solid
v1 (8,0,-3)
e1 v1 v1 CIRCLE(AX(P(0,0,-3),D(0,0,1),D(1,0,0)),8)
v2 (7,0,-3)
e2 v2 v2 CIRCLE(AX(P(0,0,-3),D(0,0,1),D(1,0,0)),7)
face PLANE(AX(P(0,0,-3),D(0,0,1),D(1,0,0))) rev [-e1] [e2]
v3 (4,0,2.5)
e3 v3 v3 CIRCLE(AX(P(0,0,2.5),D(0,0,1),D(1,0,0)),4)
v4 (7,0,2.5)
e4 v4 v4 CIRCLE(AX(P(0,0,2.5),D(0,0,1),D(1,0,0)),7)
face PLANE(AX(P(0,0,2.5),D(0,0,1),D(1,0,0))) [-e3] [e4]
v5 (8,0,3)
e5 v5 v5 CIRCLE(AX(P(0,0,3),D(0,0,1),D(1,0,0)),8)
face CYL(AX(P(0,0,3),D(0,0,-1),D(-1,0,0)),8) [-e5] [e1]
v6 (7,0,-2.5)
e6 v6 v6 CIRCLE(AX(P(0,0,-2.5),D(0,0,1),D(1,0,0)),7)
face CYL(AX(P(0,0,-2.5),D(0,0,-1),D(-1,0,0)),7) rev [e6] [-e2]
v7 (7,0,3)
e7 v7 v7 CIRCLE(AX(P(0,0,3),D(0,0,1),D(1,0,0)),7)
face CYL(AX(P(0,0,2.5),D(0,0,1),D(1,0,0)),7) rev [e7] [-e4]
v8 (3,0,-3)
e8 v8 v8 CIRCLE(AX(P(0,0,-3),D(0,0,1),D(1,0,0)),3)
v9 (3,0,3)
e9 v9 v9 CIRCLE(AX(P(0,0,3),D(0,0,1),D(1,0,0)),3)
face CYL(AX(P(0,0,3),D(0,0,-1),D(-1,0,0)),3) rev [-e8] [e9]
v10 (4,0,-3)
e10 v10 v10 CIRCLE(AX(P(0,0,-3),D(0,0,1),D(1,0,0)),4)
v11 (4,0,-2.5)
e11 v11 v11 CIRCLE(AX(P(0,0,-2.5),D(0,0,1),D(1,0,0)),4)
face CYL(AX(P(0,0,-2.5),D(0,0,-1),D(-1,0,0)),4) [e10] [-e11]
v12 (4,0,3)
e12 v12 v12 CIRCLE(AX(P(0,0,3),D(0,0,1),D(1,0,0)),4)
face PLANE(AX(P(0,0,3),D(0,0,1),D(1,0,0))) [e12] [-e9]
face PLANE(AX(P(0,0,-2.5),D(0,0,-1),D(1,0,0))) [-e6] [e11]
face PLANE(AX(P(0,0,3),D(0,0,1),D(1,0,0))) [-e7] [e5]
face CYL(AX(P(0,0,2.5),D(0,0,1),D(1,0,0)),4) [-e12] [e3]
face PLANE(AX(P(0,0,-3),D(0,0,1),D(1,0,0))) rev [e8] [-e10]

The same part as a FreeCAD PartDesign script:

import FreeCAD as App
import Part
import Sketcher

V = App.Vector

doc = App.newDocument("Part")
body = doc.addObject("PartDesign::Body", "Body")

# Sketch on XY plane
sketch1 = doc.addObject("Sketcher::SketchObject", "Sketch")
body.addObject(sketch1)
sketch1.AttachmentSupport = (doc.XY_Plane, [""])
sketch1.MapMode = "FlatFace"
sketch1.addGeometry(Part.Circle(V(0, 0, 0), V(0, 0, 1), 8), False)
sketch1.addGeometry(Part.Circle(V(0, 0, 0), V(0, 0, 1), 3), False)
sketch1.addConstraint(Sketcher.Constraint("Coincident", 0, 3, -1, 1))
sketch1.addConstraint(Sketcher.Constraint("Coincident", 1, 3, -1, 1))
sketch1.addConstraint(Sketcher.Constraint("Diameter", 0, 16.0))
sketch1.addConstraint(Sketcher.Constraint("Diameter", 1, 6.0))
pad1 = doc.addObject("PartDesign::Pad", "Pad")
body.addObject(pad1)
pad1.Profile = sketch1
pad1.Length = 6
pad1.Midplane = True

# Sketch on XY plane
sketch2 = doc.addObject("Sketcher::SketchObject", "Sketch001")
body.addObject(sketch2)
sketch2.AttachmentSupport = (doc.XY_Plane, [""])
sketch2.MapMode = "FlatFace"
sketch2.AttachmentOffset = App.Placement(V(0, 0, 3), App.Rotation())
sketch2.addGeometry(Part.Circle(V(0, 0, 0), V(0, 0, 1), 7), False)
sketch2.addGeometry(Part.Circle(V(0, 0, 0), V(0, 0, 1), 4), False)
sketch2.addConstraint(Sketcher.Constraint("Coincident", 0, 3, -1, 1))
sketch2.addConstraint(Sketcher.Constraint("Coincident", 1, 3, -1, 1))
sketch2.addConstraint(Sketcher.Constraint("Diameter", 0, 14.0))
sketch2.addConstraint(Sketcher.Constraint("Diameter", 1, 8.0))
pocket1 = doc.addObject("PartDesign::Pocket", "Pocket")
body.addObject(pocket1)
pocket1.Profile = sketch2
pocket1.Length = 0.5
doc.recompute()

mirrored = doc.addObject("PartDesign::Mirrored", "Mirrored")
body.addObject(mirrored)
mirrored.Originals = [pocket1]
mirrored.MirrorPlane = (doc.XY_Plane, [""])
body.Tip = mirrored

doc.recompute()
